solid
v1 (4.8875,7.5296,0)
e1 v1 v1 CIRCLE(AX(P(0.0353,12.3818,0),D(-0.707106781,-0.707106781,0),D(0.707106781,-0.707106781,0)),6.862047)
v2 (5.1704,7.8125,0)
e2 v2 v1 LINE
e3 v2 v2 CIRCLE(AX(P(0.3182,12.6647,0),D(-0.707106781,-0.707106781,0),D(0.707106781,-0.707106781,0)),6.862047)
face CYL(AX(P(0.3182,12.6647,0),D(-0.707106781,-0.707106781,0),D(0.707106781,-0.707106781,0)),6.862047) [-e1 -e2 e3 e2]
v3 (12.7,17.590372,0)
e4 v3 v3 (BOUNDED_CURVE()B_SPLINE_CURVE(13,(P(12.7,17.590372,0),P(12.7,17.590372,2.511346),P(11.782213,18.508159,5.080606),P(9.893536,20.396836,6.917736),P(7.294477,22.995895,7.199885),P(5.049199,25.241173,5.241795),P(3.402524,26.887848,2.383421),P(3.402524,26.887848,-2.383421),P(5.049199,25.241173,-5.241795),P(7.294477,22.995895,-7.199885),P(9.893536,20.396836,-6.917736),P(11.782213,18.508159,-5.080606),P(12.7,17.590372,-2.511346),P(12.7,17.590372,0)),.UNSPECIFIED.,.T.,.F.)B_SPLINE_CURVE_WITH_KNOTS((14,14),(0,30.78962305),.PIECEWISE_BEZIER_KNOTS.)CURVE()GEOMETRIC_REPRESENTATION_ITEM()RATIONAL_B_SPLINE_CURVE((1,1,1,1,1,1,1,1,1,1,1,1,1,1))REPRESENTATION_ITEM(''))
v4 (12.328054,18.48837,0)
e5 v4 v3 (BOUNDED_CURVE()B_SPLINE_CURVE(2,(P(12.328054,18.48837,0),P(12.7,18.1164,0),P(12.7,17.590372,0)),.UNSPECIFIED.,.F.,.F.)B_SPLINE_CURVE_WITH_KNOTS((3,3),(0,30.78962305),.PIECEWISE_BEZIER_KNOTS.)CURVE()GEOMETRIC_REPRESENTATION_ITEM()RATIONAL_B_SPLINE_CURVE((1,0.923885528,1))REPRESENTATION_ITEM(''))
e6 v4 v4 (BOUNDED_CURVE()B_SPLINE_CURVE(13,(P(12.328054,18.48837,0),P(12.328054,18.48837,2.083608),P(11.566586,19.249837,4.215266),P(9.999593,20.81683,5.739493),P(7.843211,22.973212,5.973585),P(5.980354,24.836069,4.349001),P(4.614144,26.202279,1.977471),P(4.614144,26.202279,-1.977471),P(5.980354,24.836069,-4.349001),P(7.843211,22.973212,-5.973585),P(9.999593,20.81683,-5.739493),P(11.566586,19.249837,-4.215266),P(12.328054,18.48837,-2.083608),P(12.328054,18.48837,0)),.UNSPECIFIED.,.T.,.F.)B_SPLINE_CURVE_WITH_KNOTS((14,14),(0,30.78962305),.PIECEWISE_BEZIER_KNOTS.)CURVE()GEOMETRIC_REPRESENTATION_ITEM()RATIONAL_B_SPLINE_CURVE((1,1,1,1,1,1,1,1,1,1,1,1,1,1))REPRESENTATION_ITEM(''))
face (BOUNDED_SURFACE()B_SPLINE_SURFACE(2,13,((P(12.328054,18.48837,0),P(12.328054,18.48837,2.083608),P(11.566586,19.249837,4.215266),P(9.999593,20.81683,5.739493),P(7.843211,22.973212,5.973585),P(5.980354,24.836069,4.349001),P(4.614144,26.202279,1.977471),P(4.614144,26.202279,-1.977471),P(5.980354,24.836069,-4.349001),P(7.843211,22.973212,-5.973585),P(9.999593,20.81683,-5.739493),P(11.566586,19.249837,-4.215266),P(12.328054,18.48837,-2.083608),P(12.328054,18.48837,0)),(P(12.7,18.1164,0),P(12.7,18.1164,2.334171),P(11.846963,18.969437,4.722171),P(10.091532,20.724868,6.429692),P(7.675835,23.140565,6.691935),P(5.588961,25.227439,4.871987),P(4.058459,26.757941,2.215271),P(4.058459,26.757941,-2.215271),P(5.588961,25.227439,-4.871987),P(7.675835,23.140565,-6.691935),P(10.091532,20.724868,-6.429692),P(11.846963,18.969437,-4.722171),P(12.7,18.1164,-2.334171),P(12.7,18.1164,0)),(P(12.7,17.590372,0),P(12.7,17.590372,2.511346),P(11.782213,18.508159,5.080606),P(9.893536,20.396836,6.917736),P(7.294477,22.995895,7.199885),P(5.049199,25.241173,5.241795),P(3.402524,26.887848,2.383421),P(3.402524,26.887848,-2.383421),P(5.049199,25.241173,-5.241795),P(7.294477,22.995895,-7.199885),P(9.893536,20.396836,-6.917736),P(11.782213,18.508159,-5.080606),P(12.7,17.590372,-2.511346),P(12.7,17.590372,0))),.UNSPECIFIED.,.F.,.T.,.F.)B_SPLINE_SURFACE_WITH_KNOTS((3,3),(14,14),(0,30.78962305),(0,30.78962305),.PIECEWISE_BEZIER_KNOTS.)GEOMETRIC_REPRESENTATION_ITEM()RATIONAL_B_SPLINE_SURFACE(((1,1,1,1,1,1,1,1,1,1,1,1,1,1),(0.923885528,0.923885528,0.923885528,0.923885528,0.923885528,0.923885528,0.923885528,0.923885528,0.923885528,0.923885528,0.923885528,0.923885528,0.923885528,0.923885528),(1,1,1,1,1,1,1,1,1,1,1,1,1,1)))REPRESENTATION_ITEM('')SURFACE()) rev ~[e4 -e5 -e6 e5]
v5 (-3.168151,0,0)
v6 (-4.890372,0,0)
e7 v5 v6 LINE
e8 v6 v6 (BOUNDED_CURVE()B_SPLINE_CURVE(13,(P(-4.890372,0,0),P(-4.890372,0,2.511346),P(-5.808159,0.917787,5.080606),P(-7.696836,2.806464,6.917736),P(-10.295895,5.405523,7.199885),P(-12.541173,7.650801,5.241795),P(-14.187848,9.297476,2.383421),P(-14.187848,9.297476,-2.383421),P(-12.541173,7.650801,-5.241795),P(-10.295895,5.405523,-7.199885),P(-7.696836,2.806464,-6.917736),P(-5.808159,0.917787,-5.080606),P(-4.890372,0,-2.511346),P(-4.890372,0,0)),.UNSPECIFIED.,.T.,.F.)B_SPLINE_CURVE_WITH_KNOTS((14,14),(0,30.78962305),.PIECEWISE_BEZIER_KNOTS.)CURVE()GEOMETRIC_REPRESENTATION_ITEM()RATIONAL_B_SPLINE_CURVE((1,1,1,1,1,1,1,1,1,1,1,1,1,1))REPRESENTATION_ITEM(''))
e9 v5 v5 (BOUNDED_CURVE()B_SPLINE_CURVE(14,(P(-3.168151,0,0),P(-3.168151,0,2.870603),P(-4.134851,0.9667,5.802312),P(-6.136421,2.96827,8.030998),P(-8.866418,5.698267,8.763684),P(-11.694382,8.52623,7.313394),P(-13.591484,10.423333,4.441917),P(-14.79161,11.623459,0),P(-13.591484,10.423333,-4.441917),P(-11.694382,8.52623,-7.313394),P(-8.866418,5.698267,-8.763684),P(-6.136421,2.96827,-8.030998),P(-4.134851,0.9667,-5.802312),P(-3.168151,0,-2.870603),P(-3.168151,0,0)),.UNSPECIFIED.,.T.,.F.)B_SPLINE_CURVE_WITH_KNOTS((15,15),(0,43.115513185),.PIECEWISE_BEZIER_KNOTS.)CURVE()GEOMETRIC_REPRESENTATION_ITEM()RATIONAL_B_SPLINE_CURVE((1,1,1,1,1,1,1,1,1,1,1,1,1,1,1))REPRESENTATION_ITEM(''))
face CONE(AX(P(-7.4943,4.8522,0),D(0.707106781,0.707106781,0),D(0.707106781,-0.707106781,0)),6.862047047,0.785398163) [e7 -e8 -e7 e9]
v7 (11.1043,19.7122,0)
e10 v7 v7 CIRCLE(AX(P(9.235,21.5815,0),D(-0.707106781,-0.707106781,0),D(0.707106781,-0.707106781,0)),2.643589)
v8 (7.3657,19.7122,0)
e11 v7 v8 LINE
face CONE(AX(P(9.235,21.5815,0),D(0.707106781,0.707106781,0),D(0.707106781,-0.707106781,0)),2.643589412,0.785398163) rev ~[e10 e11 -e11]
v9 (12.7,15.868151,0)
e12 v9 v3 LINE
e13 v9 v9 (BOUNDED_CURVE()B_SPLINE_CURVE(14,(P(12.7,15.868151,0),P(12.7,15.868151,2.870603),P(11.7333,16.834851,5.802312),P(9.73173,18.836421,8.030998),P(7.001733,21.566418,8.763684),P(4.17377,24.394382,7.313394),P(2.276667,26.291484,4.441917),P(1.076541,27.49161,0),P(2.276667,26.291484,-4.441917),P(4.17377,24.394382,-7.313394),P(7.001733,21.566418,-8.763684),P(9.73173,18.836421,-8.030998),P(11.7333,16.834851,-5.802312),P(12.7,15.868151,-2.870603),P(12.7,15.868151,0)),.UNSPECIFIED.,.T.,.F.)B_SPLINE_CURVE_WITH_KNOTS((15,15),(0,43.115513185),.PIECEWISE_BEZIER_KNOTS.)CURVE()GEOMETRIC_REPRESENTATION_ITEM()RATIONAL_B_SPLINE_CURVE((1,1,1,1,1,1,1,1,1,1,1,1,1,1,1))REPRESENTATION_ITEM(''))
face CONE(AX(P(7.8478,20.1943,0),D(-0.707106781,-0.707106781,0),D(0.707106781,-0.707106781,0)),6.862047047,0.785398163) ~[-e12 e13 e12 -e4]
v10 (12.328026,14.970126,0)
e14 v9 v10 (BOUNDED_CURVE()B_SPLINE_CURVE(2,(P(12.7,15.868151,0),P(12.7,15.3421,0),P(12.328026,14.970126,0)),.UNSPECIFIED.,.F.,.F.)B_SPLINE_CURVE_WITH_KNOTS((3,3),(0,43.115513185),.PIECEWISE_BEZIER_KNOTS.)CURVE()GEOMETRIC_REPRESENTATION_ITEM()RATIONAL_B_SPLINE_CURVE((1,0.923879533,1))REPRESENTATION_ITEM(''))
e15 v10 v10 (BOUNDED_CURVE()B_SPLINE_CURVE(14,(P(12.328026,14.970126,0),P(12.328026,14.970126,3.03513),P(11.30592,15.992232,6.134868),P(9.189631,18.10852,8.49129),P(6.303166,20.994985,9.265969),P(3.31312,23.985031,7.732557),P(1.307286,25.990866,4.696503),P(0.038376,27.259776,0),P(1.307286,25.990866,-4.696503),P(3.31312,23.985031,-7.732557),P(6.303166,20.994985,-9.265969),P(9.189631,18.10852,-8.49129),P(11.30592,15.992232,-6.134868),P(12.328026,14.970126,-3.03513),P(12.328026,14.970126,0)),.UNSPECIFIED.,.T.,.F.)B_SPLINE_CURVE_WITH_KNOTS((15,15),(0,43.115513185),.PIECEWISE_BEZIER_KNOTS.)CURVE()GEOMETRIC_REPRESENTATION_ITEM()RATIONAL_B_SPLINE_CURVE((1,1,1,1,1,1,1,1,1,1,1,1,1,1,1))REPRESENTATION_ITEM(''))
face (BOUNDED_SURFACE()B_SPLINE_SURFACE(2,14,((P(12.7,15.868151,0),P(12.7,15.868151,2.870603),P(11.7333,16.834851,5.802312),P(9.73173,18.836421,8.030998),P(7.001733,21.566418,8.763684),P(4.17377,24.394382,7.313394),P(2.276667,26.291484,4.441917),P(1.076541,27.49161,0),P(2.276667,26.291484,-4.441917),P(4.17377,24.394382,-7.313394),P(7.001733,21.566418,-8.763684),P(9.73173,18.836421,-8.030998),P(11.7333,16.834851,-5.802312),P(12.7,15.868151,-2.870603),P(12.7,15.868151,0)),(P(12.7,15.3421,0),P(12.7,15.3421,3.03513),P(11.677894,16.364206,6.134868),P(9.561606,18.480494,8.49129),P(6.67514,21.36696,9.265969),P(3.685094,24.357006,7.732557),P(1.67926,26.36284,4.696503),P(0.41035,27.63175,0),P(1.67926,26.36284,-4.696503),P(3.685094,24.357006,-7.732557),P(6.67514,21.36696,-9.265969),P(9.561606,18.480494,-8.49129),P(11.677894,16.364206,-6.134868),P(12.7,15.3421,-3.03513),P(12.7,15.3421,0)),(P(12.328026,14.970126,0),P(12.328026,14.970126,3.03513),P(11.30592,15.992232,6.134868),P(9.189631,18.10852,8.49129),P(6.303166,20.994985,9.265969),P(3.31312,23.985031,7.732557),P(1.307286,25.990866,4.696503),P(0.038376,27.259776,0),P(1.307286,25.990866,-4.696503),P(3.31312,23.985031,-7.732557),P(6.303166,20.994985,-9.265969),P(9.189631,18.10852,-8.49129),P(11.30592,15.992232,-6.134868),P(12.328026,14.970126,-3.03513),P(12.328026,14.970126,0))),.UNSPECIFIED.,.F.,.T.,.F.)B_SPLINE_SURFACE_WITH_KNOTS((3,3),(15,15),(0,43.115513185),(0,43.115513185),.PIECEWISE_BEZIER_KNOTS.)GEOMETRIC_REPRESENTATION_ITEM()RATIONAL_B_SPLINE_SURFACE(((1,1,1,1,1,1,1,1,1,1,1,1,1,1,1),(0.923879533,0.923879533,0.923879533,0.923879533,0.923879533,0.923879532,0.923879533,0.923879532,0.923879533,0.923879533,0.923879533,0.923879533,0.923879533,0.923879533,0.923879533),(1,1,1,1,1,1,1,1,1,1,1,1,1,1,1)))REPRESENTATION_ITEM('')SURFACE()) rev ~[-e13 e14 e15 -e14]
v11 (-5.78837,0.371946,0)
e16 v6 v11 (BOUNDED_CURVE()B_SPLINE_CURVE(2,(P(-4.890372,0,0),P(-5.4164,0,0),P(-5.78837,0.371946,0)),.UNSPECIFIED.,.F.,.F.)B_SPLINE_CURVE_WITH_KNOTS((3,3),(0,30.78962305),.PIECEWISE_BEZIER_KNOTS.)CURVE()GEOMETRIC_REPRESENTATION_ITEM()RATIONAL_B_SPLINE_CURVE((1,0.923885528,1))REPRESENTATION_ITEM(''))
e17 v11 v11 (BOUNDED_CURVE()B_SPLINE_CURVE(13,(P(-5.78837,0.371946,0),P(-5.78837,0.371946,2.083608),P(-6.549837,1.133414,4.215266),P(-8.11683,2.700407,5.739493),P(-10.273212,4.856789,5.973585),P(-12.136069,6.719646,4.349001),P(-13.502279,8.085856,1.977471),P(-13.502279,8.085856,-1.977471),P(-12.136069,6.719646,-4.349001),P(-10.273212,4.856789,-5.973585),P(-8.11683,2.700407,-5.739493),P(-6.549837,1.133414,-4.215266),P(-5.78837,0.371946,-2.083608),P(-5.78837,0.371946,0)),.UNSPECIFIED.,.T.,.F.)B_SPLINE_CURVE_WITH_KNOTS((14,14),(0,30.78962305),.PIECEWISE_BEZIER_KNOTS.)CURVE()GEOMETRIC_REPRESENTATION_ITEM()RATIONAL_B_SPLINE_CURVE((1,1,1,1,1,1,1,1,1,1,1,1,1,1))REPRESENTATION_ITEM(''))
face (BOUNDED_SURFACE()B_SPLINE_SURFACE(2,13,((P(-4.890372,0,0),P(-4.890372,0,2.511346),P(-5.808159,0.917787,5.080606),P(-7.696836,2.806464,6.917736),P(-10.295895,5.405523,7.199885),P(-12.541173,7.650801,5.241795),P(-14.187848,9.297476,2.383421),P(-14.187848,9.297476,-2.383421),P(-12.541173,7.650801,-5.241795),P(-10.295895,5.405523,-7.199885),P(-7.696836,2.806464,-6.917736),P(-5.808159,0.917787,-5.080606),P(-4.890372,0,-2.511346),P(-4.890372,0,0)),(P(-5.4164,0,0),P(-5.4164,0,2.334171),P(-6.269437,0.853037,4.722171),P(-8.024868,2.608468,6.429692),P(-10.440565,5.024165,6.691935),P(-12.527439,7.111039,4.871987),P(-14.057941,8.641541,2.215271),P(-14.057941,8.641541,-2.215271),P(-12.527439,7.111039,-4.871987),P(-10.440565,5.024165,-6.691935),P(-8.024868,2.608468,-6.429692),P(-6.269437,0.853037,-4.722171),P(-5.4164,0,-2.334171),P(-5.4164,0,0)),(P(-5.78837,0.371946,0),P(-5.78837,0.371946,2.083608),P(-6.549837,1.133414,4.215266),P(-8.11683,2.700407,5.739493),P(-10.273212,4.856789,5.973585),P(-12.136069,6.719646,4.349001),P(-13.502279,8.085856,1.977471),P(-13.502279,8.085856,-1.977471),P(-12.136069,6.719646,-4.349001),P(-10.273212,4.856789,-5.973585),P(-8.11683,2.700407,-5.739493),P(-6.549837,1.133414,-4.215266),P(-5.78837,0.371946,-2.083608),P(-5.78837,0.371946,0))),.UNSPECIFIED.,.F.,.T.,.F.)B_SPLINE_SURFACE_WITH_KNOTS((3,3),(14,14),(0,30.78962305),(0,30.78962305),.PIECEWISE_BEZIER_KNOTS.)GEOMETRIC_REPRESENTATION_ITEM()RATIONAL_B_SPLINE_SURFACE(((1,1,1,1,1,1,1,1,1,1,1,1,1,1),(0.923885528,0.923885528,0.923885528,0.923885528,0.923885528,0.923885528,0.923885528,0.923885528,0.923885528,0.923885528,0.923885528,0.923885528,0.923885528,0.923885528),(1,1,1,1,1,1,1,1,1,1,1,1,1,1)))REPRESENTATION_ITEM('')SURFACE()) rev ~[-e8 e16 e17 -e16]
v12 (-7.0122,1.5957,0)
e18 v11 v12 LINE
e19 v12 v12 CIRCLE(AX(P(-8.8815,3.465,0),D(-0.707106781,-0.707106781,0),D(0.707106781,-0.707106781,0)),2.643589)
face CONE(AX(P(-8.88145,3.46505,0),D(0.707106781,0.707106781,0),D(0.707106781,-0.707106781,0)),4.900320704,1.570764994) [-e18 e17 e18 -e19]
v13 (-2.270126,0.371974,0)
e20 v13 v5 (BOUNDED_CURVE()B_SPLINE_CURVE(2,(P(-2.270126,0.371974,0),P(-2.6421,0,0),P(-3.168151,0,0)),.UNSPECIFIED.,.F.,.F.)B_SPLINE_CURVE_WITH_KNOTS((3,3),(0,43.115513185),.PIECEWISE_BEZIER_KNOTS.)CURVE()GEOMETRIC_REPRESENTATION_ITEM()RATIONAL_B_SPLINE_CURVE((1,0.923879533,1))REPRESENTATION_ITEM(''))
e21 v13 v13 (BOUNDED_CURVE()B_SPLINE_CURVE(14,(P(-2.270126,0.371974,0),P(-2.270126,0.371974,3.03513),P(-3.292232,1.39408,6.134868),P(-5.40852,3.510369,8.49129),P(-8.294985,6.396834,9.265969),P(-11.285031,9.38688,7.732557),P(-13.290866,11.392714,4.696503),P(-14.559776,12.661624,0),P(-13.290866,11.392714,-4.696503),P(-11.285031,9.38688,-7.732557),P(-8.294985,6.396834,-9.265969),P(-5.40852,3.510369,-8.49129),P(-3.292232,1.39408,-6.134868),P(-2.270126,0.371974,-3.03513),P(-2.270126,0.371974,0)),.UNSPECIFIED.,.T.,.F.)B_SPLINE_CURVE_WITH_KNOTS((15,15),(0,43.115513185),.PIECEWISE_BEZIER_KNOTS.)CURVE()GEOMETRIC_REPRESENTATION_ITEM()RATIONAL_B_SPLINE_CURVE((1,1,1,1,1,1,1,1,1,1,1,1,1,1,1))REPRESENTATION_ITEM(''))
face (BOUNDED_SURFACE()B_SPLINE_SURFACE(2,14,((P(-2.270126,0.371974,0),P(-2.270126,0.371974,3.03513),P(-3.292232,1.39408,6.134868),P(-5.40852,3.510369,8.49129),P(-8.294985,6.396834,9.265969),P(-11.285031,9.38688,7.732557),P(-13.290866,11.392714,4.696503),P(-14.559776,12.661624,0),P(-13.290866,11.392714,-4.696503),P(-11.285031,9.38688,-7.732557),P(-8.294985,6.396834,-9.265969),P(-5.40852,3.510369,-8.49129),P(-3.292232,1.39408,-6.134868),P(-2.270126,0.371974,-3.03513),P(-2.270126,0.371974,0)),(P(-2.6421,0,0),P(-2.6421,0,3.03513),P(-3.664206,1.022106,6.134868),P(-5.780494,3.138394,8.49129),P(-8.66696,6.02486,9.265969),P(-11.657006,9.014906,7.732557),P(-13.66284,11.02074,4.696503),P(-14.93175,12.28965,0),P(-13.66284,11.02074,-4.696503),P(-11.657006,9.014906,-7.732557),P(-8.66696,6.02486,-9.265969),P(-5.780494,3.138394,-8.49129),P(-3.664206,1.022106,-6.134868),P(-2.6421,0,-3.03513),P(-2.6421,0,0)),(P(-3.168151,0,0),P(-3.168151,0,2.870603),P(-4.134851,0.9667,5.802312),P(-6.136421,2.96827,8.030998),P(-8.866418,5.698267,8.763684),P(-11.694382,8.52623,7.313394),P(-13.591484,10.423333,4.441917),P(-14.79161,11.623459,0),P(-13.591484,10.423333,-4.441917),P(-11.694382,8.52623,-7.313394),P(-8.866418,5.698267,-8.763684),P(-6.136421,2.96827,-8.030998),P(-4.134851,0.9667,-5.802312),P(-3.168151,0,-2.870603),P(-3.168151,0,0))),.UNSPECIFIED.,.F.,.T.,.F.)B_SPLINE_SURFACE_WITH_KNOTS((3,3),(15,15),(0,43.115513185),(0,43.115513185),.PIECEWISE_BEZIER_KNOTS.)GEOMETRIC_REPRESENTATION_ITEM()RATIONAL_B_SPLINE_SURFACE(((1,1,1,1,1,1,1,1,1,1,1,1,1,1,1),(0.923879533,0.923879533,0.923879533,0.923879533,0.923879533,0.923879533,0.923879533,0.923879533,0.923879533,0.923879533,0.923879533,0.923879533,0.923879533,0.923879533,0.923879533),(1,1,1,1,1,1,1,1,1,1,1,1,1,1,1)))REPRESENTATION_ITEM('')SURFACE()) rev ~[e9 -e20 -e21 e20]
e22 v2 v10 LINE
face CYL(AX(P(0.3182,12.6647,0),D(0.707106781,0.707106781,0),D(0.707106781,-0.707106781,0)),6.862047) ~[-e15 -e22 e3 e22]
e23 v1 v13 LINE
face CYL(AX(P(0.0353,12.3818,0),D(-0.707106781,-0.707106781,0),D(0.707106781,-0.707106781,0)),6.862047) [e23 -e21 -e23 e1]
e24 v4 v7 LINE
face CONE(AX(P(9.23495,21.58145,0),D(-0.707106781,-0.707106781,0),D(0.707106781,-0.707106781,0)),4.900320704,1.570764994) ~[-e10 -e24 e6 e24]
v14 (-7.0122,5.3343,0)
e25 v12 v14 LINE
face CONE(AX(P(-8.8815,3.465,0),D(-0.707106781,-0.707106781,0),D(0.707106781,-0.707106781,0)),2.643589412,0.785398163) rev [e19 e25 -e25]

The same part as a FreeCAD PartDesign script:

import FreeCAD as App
import Part
import Sketcher

V = App.Vector
Q = App.Units.Quantity


def edges_at(feature, points):
    """Names of the edges that pass closest to the given points."""
    edges = feature.Shape.Edges
    near = lambda p: min(range(len(edges)), key=lambda i: edges[i].distToShape(Part.Vertex(*p))[0])
    return sorted({f"Edge{near(p) + 1}" for p in points})

doc = App.newDocument("Part")
params = doc.addObject("Spreadsheet::Sheet", "Params")
for row, (alias, value) in enumerate([
    ("sketch1_length", "0.4 mm"),
    ("revolution_angle", "360 deg"),
    ("fillet_radius", "1.27 mm"),
], start=1):
    params.set(f"A{row}", alias)
    params.set(f"B{row}", "=" + value)
    params.setAlias(f"B{row}", alias)

body = doc.addObject("PartDesign::Body", "Body")

sketch1 = body.newObject("Sketcher::SketchObject", "Sketch")
sketch1.AttachmentSupport = (doc.getObject("XY_Plane"), [""])
sketch1.MapMode = "FlatFace"
sketch1.addGeometry(Part.LineSegment(V(-7.0122, 5.3343, 0), V(-7.0122, 1.5957, 0)), False)
sketch1.addGeometry(Part.LineSegment(V(-7.0122, 1.5957, 0), V(-5.4164, 0, 0)), False)
sketch1.addGeometry(Part.LineSegment(V(-5.4164, 0, 0), V(-2.6421, 0, 0)), False)
sketch1.addGeometry(Part.LineSegment(V(-2.6421, 0, 0), V(12.7, 15.3421, 0)), False)
sketch1.addGeometry(Part.LineSegment(V(12.7, 15.3421, 0), V(12.7, 18.1164, 0)), False)
sketch1.addGeometry(Part.LineSegment(V(12.7, 18.1164, 0), V(11.1043, 19.7122, 0)), False)
sketch1.addGeometry(Part.LineSegment(V(11.1043, 19.7122, 0), V(7.3657, 19.7122, 0)), False)
sketch1.addGeometry(Part.LineSegment(V(7.3657, 19.7122, 0), V(0.3182, 12.6646, 0)), False)
sketch1.addGeometry(Part.LineSegment(V(0.3182, 12.6646, 0), V(0.0354, 12.3818, 0)), False)
sketch1.addGeometry(Part.LineSegment(V(0.0354, 12.3818, 0), V(-7.0122, 5.3343, 0)), False)
sketch1.addGeometry(Part.LineSegment(V(9.235, 21.5815, 0), V(-8.8815, 3.465, 0)), True)
sketch1.addConstraint(Sketcher.Constraint("Coincident", 0, 2, 1, 1))
sketch1.addConstraint(Sketcher.Constraint("Coincident", 1, 2, 2, 1))
sketch1.addConstraint(Sketcher.Constraint("Coincident", 2, 2, 3, 1))
sketch1.addConstraint(Sketcher.Constraint("Coincident", 3, 2, 4, 1))
sketch1.addConstraint(Sketcher.Constraint("Coincident", 4, 2, 5, 1))
sketch1.addConstraint(Sketcher.Constraint("Coincident", 5, 2, 6, 1))
sketch1.addConstraint(Sketcher.Constraint("Coincident", 6, 2, 7, 1))
sketch1.addConstraint(Sketcher.Constraint("Coincident", 7, 2, 8, 1))
sketch1.addConstraint(Sketcher.Constraint("Coincident", 8, 2, 9, 1))
sketch1.addConstraint(Sketcher.Constraint("Coincident", 9, 2, 0, 1))
sketch1.addConstraint(Sketcher.Constraint("Vertical", 0))
sketch1.addConstraint(Sketcher.Constraint("Horizontal", 2))
sketch1.addConstraint(Sketcher.Constraint("Vertical", 4))
sketch1.addConstraint(Sketcher.Constraint("Horizontal", 6))
sketch1.addConstraint(Sketcher.Constraint("PointOnObject", 1, 2, -1))
sketch1.addConstraint(Sketcher.Constraint("Perpendicular", 1, 3))
sketch1.addConstraint(Sketcher.Constraint("Perpendicular", 3, 5))
sketch1.addConstraint(Sketcher.Constraint("Perpendicular", 5, 7))
sketch1.addConstraint(Sketcher.Constraint("Parallel", 7, 8))
sketch1.addConstraint(Sketcher.Constraint("Parallel", 8, 9))
sketch1.addConstraint(Sketcher.Constraint("Parallel", 9, 10))
sketch1.addConstraint(Sketcher.Constraint("Equal", 6, 0))
sketch1.addConstraint(Sketcher.Constraint("Equal", 2, 4))
sketch1.addConstraint(Sketcher.Constraint("Equal", 1, 5))
sketch1.addConstraint(Sketcher.Constraint("Equal", 7, 9))
sketch1.addConstraint(Sketcher.Constraint("Distance", 8, Q("0.4 mm")))
sketch1.addConstraint(Sketcher.Constraint("DistanceX", -1, 1, 3, 2, Q("12.7 mm")))
sketch1.addConstraint(Sketcher.Constraint("DistanceX", 0, 2, 2, 2, Q("4.37 mm")))
sketch1.addConstraint(Sketcher.Constraint("Distance", 3, Q("21.697 mm")))
sketch1.addConstraint(Sketcher.Constraint("DistanceX", 2, 1, 2, 2, Q("2.7743 mm")))
sketch1.addConstraint(Sketcher.Constraint("DistanceX", 6, 2, 6, 1, Q("3.7386 mm")))
sketch1.addConstraint(Sketcher.Constraint("DistanceX", -1, 1, 10, 1, Q("9.235 mm")))
sketch1.addConstraint(Sketcher.Constraint("DistanceY", -1, 1, 10, 2, Q("3.465 mm")))
sketch1.addConstraint(Sketcher.Constraint("DistanceY", 4, 2, 10, 1, Q("3.465 mm")))
sketch1.setExpression("Constraints[25]", "Params.sketch1_length")
revolution = body.newObject("PartDesign::Revolution", "Revolution")
revolution.Profile = sketch1
revolution.ReferenceAxis = (sketch1, ["Axis0"])
revolution.setExpression("Angle", "Params.revolution_angle")
doc.recompute()

fillet = body.newObject("PartDesign::Fillet", "Fillet")
fillet.Base = (revolution, edges_at(revolution, [
    (2.996, 25.046, 0),
    (5.77, 25.046, 0),
    (-12.346, 9.704, 0),
    (-12.346, 6.93, 0),
]))
fillet.setExpression("Radius", "Params.fillet_radius")

doc.recompute()
